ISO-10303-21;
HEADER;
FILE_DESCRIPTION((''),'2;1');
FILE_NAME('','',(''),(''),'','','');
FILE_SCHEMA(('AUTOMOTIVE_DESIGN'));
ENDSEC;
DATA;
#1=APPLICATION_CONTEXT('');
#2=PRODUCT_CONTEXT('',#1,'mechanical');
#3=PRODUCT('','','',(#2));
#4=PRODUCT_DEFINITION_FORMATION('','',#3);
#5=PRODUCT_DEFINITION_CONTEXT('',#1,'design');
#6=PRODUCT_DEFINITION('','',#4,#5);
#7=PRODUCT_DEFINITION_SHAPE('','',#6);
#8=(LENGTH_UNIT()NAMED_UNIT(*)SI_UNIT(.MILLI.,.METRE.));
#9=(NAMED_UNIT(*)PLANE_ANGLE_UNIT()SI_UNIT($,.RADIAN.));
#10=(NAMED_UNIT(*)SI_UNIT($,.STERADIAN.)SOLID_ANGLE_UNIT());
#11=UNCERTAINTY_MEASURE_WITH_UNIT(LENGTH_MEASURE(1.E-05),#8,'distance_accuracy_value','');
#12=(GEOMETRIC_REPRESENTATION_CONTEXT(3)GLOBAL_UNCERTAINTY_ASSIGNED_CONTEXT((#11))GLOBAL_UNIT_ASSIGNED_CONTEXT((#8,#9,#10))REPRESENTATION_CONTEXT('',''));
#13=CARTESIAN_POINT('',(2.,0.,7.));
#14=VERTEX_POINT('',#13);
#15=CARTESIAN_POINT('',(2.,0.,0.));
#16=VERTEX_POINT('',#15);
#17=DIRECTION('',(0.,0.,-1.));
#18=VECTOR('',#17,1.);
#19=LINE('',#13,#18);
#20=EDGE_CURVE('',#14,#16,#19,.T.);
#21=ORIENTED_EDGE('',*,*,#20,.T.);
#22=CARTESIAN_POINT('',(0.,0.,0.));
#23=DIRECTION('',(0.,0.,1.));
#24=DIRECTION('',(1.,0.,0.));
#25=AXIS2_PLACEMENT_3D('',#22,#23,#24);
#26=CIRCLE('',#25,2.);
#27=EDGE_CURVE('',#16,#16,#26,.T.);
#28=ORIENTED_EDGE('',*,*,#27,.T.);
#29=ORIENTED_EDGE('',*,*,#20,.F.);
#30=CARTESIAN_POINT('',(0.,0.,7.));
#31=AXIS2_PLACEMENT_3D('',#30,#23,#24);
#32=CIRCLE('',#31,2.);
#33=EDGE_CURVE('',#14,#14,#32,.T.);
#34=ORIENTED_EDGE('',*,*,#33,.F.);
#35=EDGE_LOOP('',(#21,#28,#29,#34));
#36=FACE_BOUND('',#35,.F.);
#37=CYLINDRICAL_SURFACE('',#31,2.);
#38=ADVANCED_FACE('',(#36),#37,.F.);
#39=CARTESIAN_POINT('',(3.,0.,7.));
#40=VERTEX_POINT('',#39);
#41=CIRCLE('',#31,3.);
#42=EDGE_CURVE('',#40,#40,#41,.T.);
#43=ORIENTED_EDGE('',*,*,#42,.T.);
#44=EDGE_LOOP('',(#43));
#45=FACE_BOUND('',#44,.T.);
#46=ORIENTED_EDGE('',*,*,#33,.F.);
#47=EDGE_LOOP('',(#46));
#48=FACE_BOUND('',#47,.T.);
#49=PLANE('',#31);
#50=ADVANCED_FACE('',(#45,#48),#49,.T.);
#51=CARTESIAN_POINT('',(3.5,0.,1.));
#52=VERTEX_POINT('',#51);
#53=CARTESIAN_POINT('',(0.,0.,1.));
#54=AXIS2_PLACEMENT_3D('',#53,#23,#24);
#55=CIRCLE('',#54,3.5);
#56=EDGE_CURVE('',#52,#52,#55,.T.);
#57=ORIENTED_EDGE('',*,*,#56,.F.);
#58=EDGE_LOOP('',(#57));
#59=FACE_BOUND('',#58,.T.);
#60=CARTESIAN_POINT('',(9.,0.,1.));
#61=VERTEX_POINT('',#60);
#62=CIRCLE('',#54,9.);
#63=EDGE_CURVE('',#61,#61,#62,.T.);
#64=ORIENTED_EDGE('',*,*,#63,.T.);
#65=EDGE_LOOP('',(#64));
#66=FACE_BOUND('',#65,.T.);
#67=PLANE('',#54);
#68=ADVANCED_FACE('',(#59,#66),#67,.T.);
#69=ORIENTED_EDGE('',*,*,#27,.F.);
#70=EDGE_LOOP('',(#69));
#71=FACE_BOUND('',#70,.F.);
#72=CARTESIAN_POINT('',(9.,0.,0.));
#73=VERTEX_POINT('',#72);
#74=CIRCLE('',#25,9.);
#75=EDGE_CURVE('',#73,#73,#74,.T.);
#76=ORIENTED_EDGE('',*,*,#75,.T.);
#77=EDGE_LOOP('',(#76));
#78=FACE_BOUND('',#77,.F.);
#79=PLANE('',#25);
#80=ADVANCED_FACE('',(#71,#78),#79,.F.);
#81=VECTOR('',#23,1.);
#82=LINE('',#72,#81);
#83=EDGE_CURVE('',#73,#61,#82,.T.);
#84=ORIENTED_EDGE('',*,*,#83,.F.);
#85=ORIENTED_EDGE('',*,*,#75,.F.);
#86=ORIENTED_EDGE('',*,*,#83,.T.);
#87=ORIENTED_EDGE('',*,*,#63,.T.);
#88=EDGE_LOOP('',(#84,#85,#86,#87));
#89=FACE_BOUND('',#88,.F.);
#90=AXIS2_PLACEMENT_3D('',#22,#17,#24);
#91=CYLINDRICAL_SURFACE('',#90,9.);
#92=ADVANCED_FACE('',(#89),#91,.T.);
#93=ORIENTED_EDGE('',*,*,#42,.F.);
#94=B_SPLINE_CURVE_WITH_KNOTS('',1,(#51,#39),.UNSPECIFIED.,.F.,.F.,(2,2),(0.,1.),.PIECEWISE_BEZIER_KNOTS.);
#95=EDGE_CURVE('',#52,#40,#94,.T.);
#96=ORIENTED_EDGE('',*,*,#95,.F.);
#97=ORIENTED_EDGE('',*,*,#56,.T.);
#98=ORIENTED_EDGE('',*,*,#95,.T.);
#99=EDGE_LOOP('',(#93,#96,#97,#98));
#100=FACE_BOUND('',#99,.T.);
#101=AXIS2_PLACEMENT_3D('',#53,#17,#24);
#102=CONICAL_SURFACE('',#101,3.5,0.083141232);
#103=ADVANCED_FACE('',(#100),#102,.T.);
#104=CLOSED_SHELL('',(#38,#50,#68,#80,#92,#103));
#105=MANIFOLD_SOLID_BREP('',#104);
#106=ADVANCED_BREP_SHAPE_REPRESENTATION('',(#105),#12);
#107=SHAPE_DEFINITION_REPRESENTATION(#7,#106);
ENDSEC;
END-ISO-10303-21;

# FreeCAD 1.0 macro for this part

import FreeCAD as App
import Part
import Sketcher

V = App.Vector
Q = App.Units.Quantity

doc = App.newDocument("Part")
body = doc.addObject("PartDesign::Body", "Body")

sketch1 = body.newObject("Sketcher::SketchObject", "Sketch")
sketch1.AttachmentSupport = (doc.getObject("XY_Plane"), [""])
sketch1.MapMode = "FlatFace"
sketch1.addGeometry(Part.Circle(V(0, 0, 0), V(0, 0, 1), 9), False)
sketch1.addConstraint([
    Sketcher.Constraint("Coincident", 0, 3, -1, 1),
    Sketcher.Constraint("Diameter", 0, Q("18 mm")),
])
pad1 = body.newObject("PartDesign::Pad", "Pad")
pad1.Profile = sketch1
pad1.Length = 1
body2 = doc.addObject("PartDesign::Body", "Body001")

sketch2 = body2.newObject("Sketcher::SketchObject", "Sketch001")
sketch2.AttachmentSupport = (doc.getObject("XY_Plane001"), [""])
sketch2.MapMode = "FlatFace"
sketch2.AttachmentOffset = App.Placement(V(0, 0, 1), App.Rotation())
sketch2.addGeometry(Part.Circle(V(0, 0, 0), V(0, 0, 1), 3.5), False)
sketch2.addConstraint([
    Sketcher.Constraint("Coincident", 0, 3, -1, 1),
    Sketcher.Constraint("Diameter", 0, Q("7 mm")),
])

sketch3 = body2.newObject("Sketcher::SketchObject", "Sketch002")
sketch3.AttachmentSupport = (doc.getObject("XY_Plane001"), [""])
sketch3.MapMode = "FlatFace"
sketch3.AttachmentOffset = App.Placement(V(0, 0, 7), App.Rotation())
sketch3.addGeometry(Part.Circle(V(0, 0, 0), V(0, 0, 1), 3), False)
sketch3.addConstraint([
    Sketcher.Constraint("Coincident", 0, 3, -1, 1),
    Sketcher.Constraint("Diameter", 0, Q("6 mm")),
])

additiveloft = body2.newObject("PartDesign::AdditiveLoft", "AdditiveLoft")
additiveloft.Profile = sketch2
additiveloft.Sections = [sketch3]
doc.recompute()

boolean = body2.newObject("PartDesign::Boolean", "Boolean")
boolean.Type = "Fuse"
boolean.addObjects([body])

sketch4 = body2.newObject("Sketcher::SketchObject", "Sketch003")
sketch4.AttachmentSupport = (doc.getObject("XY_Plane001"), [""])
sketch4.MapMode = "FlatFace"
sketch4.AttachmentOffset = App.Placement(V(0, 0, 7), App.Rotation())
sketch4.addGeometry(Part.Circle(V(0, 0, 0), V(0, 0, 1), 2), False)
sketch4.addConstraint([
    Sketcher.Constraint("Coincident", 0, 3, -1, 1),
    Sketcher.Constraint("Diameter", 0, Q("4 mm")),
])
pocket1 = body2.newObject("PartDesign::Pocket", "Pocket")
pocket1.Profile = sketch4
pocket1.Type = "ThroughAll"

doc.recompute()
